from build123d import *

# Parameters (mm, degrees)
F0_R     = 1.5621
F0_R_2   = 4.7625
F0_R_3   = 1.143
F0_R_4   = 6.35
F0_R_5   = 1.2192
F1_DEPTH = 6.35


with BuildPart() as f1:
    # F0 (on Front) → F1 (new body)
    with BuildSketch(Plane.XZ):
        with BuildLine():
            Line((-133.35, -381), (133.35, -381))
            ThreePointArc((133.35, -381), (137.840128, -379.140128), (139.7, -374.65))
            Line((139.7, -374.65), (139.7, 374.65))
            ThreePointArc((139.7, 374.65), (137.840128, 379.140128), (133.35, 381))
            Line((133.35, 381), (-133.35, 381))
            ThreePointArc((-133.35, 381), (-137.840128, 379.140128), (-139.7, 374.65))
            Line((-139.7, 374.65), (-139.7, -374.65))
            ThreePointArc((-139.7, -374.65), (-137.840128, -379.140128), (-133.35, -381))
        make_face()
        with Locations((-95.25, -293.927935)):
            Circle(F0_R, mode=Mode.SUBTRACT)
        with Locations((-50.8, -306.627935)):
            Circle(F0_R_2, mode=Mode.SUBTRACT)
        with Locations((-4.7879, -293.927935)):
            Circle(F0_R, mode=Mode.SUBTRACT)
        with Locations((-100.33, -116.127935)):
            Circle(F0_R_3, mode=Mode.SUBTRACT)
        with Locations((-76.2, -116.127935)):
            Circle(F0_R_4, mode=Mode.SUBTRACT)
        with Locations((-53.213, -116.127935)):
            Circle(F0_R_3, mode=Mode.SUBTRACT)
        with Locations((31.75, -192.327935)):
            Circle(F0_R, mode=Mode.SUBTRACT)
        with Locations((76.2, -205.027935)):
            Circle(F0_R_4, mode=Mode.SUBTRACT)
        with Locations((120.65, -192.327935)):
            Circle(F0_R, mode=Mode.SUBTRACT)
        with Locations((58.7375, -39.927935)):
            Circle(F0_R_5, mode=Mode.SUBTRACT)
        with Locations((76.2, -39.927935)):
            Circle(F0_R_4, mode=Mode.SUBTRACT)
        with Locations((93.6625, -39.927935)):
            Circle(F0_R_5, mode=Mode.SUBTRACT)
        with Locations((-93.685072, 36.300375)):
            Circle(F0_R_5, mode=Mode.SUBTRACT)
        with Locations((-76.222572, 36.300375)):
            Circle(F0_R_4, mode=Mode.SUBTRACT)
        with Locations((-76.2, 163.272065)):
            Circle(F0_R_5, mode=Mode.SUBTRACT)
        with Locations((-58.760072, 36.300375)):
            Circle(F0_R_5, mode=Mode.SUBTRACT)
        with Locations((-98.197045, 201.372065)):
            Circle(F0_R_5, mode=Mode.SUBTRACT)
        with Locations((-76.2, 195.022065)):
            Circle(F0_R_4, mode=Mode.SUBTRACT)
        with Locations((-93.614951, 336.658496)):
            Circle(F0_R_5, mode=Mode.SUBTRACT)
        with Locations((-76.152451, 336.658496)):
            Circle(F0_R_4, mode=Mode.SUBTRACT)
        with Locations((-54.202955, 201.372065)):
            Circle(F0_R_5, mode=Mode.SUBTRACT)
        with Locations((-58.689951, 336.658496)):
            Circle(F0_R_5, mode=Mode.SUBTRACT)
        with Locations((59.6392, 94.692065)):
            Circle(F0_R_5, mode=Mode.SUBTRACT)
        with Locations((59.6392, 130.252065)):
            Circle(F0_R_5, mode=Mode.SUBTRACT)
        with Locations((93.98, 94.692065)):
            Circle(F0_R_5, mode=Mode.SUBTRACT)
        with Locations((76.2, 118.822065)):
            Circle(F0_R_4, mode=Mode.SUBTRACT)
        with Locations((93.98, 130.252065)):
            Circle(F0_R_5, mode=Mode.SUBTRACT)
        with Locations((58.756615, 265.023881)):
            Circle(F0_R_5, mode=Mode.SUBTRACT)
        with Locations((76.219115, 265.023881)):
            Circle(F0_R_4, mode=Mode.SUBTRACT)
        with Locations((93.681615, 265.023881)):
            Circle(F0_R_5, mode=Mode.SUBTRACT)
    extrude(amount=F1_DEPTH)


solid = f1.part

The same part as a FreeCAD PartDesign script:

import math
import FreeCAD as App
import Part
import Sketcher

V = App.Vector
Q = App.Units.Quantity

doc = App.newDocument("Part")
body = doc.addObject("PartDesign::Body", "Body")

# Sketch on XZ plane
sketch1 = doc.addObject("Sketcher::SketchObject", "Sketch")
body.addObject(sketch1)
sketch1.AttachmentSupport = (doc.XZ_Plane, [""])
sketch1.MapMode = "FlatFace"
sketch1.addGeometry(Part.LineSegment(V(-133.3, -381, 0), V(133.3, -381, 0)), False)
sketch1.addGeometry(Part.ArcOfCircle(Part.Circle(V(133.3, -374.6, 0), V(0, 0, 1), 6.4), math.radians(-90), math.radians(0)), False)
sketch1.addGeometry(Part.LineSegment(V(139.7, -374.6, 0), V(139.7, 374.6, 0)), False)
sketch1.addGeometry(Part.ArcOfCircle(Part.Circle(V(133.3, 374.6, 0), V(0, 0, 1), 6.4), math.radians(0), math.radians(90)), False)
sketch1.addGeometry(Part.LineSegment(V(133.3, 381, 0), V(-133.3, 381, 0)), False)
sketch1.addGeometry(Part.ArcOfCircle(Part.Circle(V(-133.3, 374.6, 0), V(0, 0, 1), 6.4), math.radians(90), math.radians(180)), False)
sketch1.addGeometry(Part.LineSegment(V(-139.7, 374.6, 0), V(-139.7, -374.6, 0)), False)
sketch1.addGeometry(Part.ArcOfCircle(Part.Circle(V(-133.3, -374.6, 0), V(0, 0, 1), 6.4), math.radians(-180), math.radians(-90)), False)
sketch1.addGeometry(Part.Circle(V(-95.2, -293.9, 0), V(0, 0, 1), 1.6), False)
sketch1.addGeometry(Part.Circle(V(-50.8, -306.6, 0), V(0, 0, 1), 4.8), False)
sketch1.addGeometry(Part.Circle(V(-4.8, -293.9, 0), V(0, 0, 1), 1.6), False)
sketch1.addGeometry(Part.Circle(V(-100.3, -116.1, 0), V(0, 0, 1), 1.1), False)
sketch1.addGeometry(Part.Circle(V(-76.2, -116.1, 0), V(0, 0, 1), 6.3), False)
sketch1.addGeometry(Part.Circle(V(-53.2, -116.1, 0), V(0, 0, 1), 1.1), False)
sketch1.addGeometry(Part.Circle(V(31.8, -192.3, 0), V(0, 0, 1), 1.6), False)
sketch1.addGeometry(Part.Circle(V(76.2, -205, 0), V(0, 0, 1), 6.3), False)
sketch1.addGeometry(Part.Circle(V(120.7, -192.3, 0), V(0, 0, 1), 1.6), False)
sketch1.addGeometry(Part.Circle(V(58.7, -39.9, 0), V(0, 0, 1), 1.2), False)
sketch1.addGeometry(Part.Circle(V(76.2, -39.9, 0), V(0, 0, 1), 6.3), False)
sketch1.addGeometry(Part.Circle(V(93.7, -39.9, 0), V(0, 0, 1), 1.2), False)
sketch1.addGeometry(Part.Circle(V(-93.7, 36.3, 0), V(0, 0, 1), 1.2), False)
sketch1.addGeometry(Part.Circle(V(-76.2, 36.3, 0), V(0, 0, 1), 6.3), False)
sketch1.addGeometry(Part.Circle(V(-58.8, 36.3, 0), V(0, 0, 1), 1.2), False)
sketch1.addGeometry(Part.Circle(V(-76.2, 163.3, 0), V(0, 0, 1), 1.2), False)
sketch1.addGeometry(Part.Circle(V(-98.2, 201.4, 0), V(0, 0, 1), 1.2), False)
sketch1.addGeometry(Part.Circle(V(-76.2, 195, 0), V(0, 0, 1), 6.3), False)
sketch1.addGeometry(Part.Circle(V(-54.2, 201.4, 0), V(0, 0, 1), 1.2), False)
sketch1.addGeometry(Part.Circle(V(-93.6, 336.7, 0), V(0, 0, 1), 1.2), False)
sketch1.addGeometry(Part.Circle(V(-76.2, 336.7, 0), V(0, 0, 1), 6.3), False)
sketch1.addGeometry(Part.Circle(V(-58.7, 336.7, 0), V(0, 0, 1), 1.2), False)
sketch1.addGeometry(Part.Circle(V(59.6, 94.7, 0), V(0, 0, 1), 1.2), False)
sketch1.addGeometry(Part.Circle(V(59.6, 130.3, 0), V(0, 0, 1), 1.2), False)
sketch1.addGeometry(Part.Circle(V(94, 94.7, 0), V(0, 0, 1), 1.2), False)
sketch1.addGeometry(Part.Circle(V(76.2, 118.8, 0), V(0, 0, 1), 6.3), False)
sketch1.addGeometry(Part.Circle(V(94, 130.3, 0), V(0, 0, 1), 1.2), False)
sketch1.addGeometry(Part.Circle(V(58.8, 265, 0), V(0, 0, 1), 1.2), False)
sketch1.addGeometry(Part.Circle(V(76.2, 265, 0), V(0, 0, 1), 6.3), False)
sketch1.addGeometry(Part.Circle(V(93.7, 265, 0), V(0, 0, 1), 1.2), False)
sketch1.addConstraint(Sketcher.Constraint("Tangent", 0, 2, 1, 1))
sketch1.addConstraint(Sketcher.Constraint("Tangent", 1, 2, 2, 1))
sketch1.addConstraint(Sketcher.Constraint("Tangent", 2, 2, 3, 1))
sketch1.addConstraint(Sketcher.Constraint("Tangent", 3, 2, 4, 1))
sketch1.addConstraint(Sketcher.Constraint("Tangent", 4, 2, 5, 1))
sketch1.addConstraint(Sketcher.Constraint("Tangent", 5, 2, 6, 1))
sketch1.addConstraint(Sketcher.Constraint("Tangent", 6, 2, 7, 1))
sketch1.addConstraint(Sketcher.Constraint("Tangent", 7, 2, 0, 1))
sketch1.addConstraint(Sketcher.Constraint("Horizontal", 0))
sketch1.addConstraint(Sketcher.Constraint("Vertical", 2))
sketch1.addConstraint(Sketcher.Constraint("Horizontal", 4))
sketch1.addConstraint(Sketcher.Constraint("Vertical", 6))
sketch1.addConstraint(Sketcher.Constraint("Equal", 1, 3))
sketch1.addConstraint(Sketcher.Constraint("Equal", 3, 5))
sketch1.addConstraint(Sketcher.Constraint("Equal", 5, 7))
sketch1.addConstraint(Sketcher.Constraint("Equal", 8, 10))
sketch1.addConstraint(Sketcher.Constraint("Equal", 7, 12))
sketch1.addConstraint(Sketcher.Constraint("Equal", 11, 13))
sketch1.addConstraint(Sketcher.Constraint("Equal", 10, 14))
sketch1.addConstraint(Sketcher.Constraint("Equal", 12, 15))
sketch1.addConstraint(Sketcher.Constraint("Equal", 14, 16))
sketch1.addConstraint(Sketcher.Constraint("Equal", 15, 18))
sketch1.addConstraint(Sketcher.Constraint("Equal", 17, 19))
sketch1.addConstraint(Sketcher.Constraint("Equal", 19, 20))
sketch1.addConstraint(Sketcher.Constraint("Equal", 18, 21))
sketch1.addConstraint(Sketcher.Constraint("Equal", 20, 22))
sketch1.addConstraint(Sketcher.Constraint("Equal", 22, 23))
sketch1.addConstraint(Sketcher.Constraint("Equal", 23, 24))
sketch1.addConstraint(Sketcher.Constraint("Equal", 21, 25))
sketch1.addConstraint(Sketcher.Constraint("Equal", 24, 26))
sketch1.addConstraint(Sketcher.Constraint("Equal", 26, 27))
sketch1.addConstraint(Sketcher.Constraint("Equal", 25, 28))
sketch1.addConstraint(Sketcher.Constraint("Equal", 27, 29))
sketch1.addConstraint(Sketcher.Constraint("Equal", 29, 30))
sketch1.addConstraint(Sketcher.Constraint("Equal", 30, 31))
sketch1.addConstraint(Sketcher.Constraint("Equal", 31, 32))
sketch1.addConstraint(Sketcher.Constraint("Equal", 28, 33))
sketch1.addConstraint(Sketcher.Constraint("Equal", 32, 34))
sketch1.addConstraint(Sketcher.Constraint("Equal", 34, 35))
sketch1.addConstraint(Sketcher.Constraint("Equal", 33, 36))
sketch1.addConstraint(Sketcher.Constraint("Equal", 35, 37))
sketch1.addConstraint(Sketcher.Constraint("Symmetric", 1, 3, 5, 3, -1, 1))
sketch1.addConstraint(Sketcher.Constraint("Horizontal", 8, 3, 10, 3))
sketch1.addConstraint(Sketcher.Constraint("Horizontal", 11, 3, 12, 3))
sketch1.addConstraint(Sketcher.Constraint("Horizontal", 12, 3, 13, 3))
sketch1.addConstraint(Sketcher.Constraint("Horizontal", 14, 3, 16, 3))
sketch1.addConstraint(Sketcher.Constraint("Horizontal", 17, 3, 18, 3))
sketch1.addConstraint(Sketcher.Constraint("Horizontal", 18, 3, 19, 3))
sketch1.addConstraint(Sketcher.Constraint("Horizontal", 20, 3, 21, 3))
sketch1.addConstraint(Sketcher.Constraint("Horizontal", 21, 3, 22, 3))
sketch1.addConstraint(Sketcher.Constraint("Horizontal", 24, 3, 26, 3))
sketch1.addConstraint(Sketcher.Constraint("Horizontal", 27, 3, 28, 3))
sketch1.addConstraint(Sketcher.Constraint("Horizontal", 28, 3, 29, 3))
sketch1.addConstraint(Sketcher.Constraint("Horizontal", 30, 3, 32, 3))
sketch1.addConstraint(Sketcher.Constraint("Horizontal", 31, 3, 34, 3))
sketch1.addConstraint(Sketcher.Constraint("Horizontal", 35, 3, 36, 3))
sketch1.addConstraint(Sketcher.Constraint("Horizontal", 36, 3, 37, 3))
sketch1.addConstraint(Sketcher.Constraint("Vertical", 15, 3, 18, 3))
sketch1.addConstraint(Sketcher.Constraint("Vertical", 12, 3, 23, 3))
sketch1.addConstraint(Sketcher.Constraint("Vertical", 23, 3, 25, 3))
sketch1.addConstraint(Sketcher.Constraint("Vertical", 30, 3, 31, 3))
sketch1.addConstraint(Sketcher.Constraint("Vertical", 18, 3, 33, 3))
sketch1.addConstraint(Sketcher.Constraint("Vertical", 32, 3, 34, 3))
sketch1.addConstraint(Sketcher.Constraint("Diameter", 12, Q("0.5 in")))
sketch1.addConstraint(Sketcher.Constraint("Diameter", 11, Q("0.09 in")))
sketch1.addConstraint(Sketcher.Constraint("Diameter", 8, Q("0.123 in")))
sketch1.addConstraint(Sketcher.Constraint("Diameter", 9, Q("0.375 in")))
sketch1.addConstraint(Sketcher.Constraint("Diameter", 17, Q("0.096 in")))
sketch1.addConstraint(Sketcher.Constraint("DistanceX", 0, 1, 0, 2, Q("10.5 in")))
sketch1.addConstraint(Sketcher.Constraint("DistanceY", 2, 1, 2, 2, Q("29.5 in")))
sketch1.addConstraint(Sketcher.Constraint("DistanceX", 9, 3, -1, 1, Q("2 in")))
sketch1.addConstraint(Sketcher.Constraint("DistanceX", 12, 3, -1, 1, Q("3 in")))
sketch1.addConstraint(Sketcher.Constraint("DistanceX", -1, 1, 15, 3, Q("3 in")))
sketch1.addConstraint(Sketcher.Constraint("DistanceX", 8, 3, 1, 3, Q("9 in")))
sketch1.addConstraint(Sketcher.Constraint("DistanceY", 8, 3, 11, 3, Q("7 in")))
sketch1.addConstraint(Sketcher.Constraint("DistanceY", 10, 3, 14, 3, Q("4 in")))
sketch1.addConstraint(Sketcher.Constraint("DistanceY", 9, 3, 15, 3, Q("4 in")))
sketch1.addConstraint(Sketcher.Constraint("DistanceY", 13, 3, 17, 3, Q("3 in")))
sketch1.addConstraint(Sketcher.Constraint("DistanceY", 17, 3, 23, 3, Q("8 in")))
sketch1.addConstraint(Sketcher.Constraint("DistanceX", -1, 1, 32, 3, Q("3.7 in")))
sketch1.addConstraint(Sketcher.Constraint("DistanceY", 9, 3, 8, 3, Q("0.5 in")))
sketch1.addConstraint(Sketcher.Constraint("DistanceX", 11, 3, 8, 3, Q("0.2 in")))
sketch1.addConstraint(Sketcher.Constraint("DistanceX", 11, 3, 14, 3, Q("5.2 in")))
sketch1.addConstraint(Sketcher.Constraint("DistanceX", 14, 3, 16, 3, Q("3.5 in")))
sketch1.addConstraint(Sketcher.Constraint("DistanceY", 23, 3, 24, 3, Q("1.5 in")))
sketch1.addConstraint(Sketcher.Constraint("DistanceY", 17, 3, 30, 3, Q("5.3 in")))
sketch1.addConstraint(Sketcher.Constraint("DistanceY", 30, 3, 31, 3, Q("1.4 in")))
sketch1.addConstraint(Sketcher.Constraint("DistanceY", 25, 3, 24, 3, Q("0.25 in")))
sketch1.addConstraint(Sketcher.Constraint("DistanceY", 33, 3, 31, 3, Q("0.45 in")))
sketch1.addConstraint(Sketcher.Constraint("DistanceX", 13, 3, -1, 1, Q("2.095 in")))
sketch1.addConstraint(Sketcher.Constraint("DistanceX", -1, 1, 17, 3, Q("2.3125 in")))
sketch1.addConstraint(Sketcher.Constraint("DistanceX", -1, 1, 19, 3, Q("3.6875 in")))
sketch1.addConstraint(Sketcher.Constraint("DistanceX", -1, 1, 30, 3, Q("2.348 in")))
sketch1.addConstraint(Sketcher.Constraint("DistanceX", 20, 3, 21, 3, Q("0.6875 in")))
sketch1.addConstraint(Sketcher.Constraint("DistanceX", 21, 3, 22, 3, Q("0.6875 in")))
sketch1.addConstraint(Sketcher.Constraint("DistanceX", 27, 3, 28, 3, Q("0.6875 in")))
sketch1.addConstraint(Sketcher.Constraint("DistanceX", 28, 3, 29, 3, Q("0.6875 in")))
sketch1.addConstraint(Sketcher.Constraint("DistanceX", 35, 3, 36, 3, Q("0.6875 in")))
sketch1.addConstraint(Sketcher.Constraint("DistanceX", 36, 3, 37, 3, Q("0.6875 in")))
sketch1.addConstraint(Sketcher.Constraint("DistanceX", 10, 3, -1, 1, Q("0.1885 in")))
sketch1.addConstraint(Sketcher.Constraint("DistanceX", 21, 3, -1, 1, Q("76.222572 mm")))
sketch1.addConstraint(Sketcher.Constraint("DistanceX", 27, 3, -1, 1, Q("93.614951 mm")))
sketch1.addConstraint(Sketcher.Constraint("DistanceY", -1, 1, 35, 3, Q("265.023881 mm")))
sketch1.addConstraint(Sketcher.Constraint("DistanceY", 11, 3, 20, 3, Q("152.42831 mm")))
sketch1.addConstraint(Sketcher.Constraint("DistanceX", 24, 3, 26, 3, Q("43.99409 mm")))
sketch1.addConstraint(Sketcher.Constraint("DistanceY", 24, 3, 27, 3, Q("135.286431 mm")))
sketch1.addConstraint(Sketcher.Constraint("DistanceX", 26, 3, 35, 3, Q("112.95957 mm")))
sketch1.addConstraint(Sketcher.Constraint("DistanceY", 8, 3, -1, 1, Q("293.927935 mm")))
sketch1.addConstraint(Sketcher.Constraint("DistanceX", 24, 3, -1, 1, Q("98.197045 mm")))
pad1 = doc.addObject("PartDesign::Pad", "Pad")
body.addObject(pad1)
pad1.Profile = sketch1
pad1.Length = Q("0.25 in")

doc.recompute()
